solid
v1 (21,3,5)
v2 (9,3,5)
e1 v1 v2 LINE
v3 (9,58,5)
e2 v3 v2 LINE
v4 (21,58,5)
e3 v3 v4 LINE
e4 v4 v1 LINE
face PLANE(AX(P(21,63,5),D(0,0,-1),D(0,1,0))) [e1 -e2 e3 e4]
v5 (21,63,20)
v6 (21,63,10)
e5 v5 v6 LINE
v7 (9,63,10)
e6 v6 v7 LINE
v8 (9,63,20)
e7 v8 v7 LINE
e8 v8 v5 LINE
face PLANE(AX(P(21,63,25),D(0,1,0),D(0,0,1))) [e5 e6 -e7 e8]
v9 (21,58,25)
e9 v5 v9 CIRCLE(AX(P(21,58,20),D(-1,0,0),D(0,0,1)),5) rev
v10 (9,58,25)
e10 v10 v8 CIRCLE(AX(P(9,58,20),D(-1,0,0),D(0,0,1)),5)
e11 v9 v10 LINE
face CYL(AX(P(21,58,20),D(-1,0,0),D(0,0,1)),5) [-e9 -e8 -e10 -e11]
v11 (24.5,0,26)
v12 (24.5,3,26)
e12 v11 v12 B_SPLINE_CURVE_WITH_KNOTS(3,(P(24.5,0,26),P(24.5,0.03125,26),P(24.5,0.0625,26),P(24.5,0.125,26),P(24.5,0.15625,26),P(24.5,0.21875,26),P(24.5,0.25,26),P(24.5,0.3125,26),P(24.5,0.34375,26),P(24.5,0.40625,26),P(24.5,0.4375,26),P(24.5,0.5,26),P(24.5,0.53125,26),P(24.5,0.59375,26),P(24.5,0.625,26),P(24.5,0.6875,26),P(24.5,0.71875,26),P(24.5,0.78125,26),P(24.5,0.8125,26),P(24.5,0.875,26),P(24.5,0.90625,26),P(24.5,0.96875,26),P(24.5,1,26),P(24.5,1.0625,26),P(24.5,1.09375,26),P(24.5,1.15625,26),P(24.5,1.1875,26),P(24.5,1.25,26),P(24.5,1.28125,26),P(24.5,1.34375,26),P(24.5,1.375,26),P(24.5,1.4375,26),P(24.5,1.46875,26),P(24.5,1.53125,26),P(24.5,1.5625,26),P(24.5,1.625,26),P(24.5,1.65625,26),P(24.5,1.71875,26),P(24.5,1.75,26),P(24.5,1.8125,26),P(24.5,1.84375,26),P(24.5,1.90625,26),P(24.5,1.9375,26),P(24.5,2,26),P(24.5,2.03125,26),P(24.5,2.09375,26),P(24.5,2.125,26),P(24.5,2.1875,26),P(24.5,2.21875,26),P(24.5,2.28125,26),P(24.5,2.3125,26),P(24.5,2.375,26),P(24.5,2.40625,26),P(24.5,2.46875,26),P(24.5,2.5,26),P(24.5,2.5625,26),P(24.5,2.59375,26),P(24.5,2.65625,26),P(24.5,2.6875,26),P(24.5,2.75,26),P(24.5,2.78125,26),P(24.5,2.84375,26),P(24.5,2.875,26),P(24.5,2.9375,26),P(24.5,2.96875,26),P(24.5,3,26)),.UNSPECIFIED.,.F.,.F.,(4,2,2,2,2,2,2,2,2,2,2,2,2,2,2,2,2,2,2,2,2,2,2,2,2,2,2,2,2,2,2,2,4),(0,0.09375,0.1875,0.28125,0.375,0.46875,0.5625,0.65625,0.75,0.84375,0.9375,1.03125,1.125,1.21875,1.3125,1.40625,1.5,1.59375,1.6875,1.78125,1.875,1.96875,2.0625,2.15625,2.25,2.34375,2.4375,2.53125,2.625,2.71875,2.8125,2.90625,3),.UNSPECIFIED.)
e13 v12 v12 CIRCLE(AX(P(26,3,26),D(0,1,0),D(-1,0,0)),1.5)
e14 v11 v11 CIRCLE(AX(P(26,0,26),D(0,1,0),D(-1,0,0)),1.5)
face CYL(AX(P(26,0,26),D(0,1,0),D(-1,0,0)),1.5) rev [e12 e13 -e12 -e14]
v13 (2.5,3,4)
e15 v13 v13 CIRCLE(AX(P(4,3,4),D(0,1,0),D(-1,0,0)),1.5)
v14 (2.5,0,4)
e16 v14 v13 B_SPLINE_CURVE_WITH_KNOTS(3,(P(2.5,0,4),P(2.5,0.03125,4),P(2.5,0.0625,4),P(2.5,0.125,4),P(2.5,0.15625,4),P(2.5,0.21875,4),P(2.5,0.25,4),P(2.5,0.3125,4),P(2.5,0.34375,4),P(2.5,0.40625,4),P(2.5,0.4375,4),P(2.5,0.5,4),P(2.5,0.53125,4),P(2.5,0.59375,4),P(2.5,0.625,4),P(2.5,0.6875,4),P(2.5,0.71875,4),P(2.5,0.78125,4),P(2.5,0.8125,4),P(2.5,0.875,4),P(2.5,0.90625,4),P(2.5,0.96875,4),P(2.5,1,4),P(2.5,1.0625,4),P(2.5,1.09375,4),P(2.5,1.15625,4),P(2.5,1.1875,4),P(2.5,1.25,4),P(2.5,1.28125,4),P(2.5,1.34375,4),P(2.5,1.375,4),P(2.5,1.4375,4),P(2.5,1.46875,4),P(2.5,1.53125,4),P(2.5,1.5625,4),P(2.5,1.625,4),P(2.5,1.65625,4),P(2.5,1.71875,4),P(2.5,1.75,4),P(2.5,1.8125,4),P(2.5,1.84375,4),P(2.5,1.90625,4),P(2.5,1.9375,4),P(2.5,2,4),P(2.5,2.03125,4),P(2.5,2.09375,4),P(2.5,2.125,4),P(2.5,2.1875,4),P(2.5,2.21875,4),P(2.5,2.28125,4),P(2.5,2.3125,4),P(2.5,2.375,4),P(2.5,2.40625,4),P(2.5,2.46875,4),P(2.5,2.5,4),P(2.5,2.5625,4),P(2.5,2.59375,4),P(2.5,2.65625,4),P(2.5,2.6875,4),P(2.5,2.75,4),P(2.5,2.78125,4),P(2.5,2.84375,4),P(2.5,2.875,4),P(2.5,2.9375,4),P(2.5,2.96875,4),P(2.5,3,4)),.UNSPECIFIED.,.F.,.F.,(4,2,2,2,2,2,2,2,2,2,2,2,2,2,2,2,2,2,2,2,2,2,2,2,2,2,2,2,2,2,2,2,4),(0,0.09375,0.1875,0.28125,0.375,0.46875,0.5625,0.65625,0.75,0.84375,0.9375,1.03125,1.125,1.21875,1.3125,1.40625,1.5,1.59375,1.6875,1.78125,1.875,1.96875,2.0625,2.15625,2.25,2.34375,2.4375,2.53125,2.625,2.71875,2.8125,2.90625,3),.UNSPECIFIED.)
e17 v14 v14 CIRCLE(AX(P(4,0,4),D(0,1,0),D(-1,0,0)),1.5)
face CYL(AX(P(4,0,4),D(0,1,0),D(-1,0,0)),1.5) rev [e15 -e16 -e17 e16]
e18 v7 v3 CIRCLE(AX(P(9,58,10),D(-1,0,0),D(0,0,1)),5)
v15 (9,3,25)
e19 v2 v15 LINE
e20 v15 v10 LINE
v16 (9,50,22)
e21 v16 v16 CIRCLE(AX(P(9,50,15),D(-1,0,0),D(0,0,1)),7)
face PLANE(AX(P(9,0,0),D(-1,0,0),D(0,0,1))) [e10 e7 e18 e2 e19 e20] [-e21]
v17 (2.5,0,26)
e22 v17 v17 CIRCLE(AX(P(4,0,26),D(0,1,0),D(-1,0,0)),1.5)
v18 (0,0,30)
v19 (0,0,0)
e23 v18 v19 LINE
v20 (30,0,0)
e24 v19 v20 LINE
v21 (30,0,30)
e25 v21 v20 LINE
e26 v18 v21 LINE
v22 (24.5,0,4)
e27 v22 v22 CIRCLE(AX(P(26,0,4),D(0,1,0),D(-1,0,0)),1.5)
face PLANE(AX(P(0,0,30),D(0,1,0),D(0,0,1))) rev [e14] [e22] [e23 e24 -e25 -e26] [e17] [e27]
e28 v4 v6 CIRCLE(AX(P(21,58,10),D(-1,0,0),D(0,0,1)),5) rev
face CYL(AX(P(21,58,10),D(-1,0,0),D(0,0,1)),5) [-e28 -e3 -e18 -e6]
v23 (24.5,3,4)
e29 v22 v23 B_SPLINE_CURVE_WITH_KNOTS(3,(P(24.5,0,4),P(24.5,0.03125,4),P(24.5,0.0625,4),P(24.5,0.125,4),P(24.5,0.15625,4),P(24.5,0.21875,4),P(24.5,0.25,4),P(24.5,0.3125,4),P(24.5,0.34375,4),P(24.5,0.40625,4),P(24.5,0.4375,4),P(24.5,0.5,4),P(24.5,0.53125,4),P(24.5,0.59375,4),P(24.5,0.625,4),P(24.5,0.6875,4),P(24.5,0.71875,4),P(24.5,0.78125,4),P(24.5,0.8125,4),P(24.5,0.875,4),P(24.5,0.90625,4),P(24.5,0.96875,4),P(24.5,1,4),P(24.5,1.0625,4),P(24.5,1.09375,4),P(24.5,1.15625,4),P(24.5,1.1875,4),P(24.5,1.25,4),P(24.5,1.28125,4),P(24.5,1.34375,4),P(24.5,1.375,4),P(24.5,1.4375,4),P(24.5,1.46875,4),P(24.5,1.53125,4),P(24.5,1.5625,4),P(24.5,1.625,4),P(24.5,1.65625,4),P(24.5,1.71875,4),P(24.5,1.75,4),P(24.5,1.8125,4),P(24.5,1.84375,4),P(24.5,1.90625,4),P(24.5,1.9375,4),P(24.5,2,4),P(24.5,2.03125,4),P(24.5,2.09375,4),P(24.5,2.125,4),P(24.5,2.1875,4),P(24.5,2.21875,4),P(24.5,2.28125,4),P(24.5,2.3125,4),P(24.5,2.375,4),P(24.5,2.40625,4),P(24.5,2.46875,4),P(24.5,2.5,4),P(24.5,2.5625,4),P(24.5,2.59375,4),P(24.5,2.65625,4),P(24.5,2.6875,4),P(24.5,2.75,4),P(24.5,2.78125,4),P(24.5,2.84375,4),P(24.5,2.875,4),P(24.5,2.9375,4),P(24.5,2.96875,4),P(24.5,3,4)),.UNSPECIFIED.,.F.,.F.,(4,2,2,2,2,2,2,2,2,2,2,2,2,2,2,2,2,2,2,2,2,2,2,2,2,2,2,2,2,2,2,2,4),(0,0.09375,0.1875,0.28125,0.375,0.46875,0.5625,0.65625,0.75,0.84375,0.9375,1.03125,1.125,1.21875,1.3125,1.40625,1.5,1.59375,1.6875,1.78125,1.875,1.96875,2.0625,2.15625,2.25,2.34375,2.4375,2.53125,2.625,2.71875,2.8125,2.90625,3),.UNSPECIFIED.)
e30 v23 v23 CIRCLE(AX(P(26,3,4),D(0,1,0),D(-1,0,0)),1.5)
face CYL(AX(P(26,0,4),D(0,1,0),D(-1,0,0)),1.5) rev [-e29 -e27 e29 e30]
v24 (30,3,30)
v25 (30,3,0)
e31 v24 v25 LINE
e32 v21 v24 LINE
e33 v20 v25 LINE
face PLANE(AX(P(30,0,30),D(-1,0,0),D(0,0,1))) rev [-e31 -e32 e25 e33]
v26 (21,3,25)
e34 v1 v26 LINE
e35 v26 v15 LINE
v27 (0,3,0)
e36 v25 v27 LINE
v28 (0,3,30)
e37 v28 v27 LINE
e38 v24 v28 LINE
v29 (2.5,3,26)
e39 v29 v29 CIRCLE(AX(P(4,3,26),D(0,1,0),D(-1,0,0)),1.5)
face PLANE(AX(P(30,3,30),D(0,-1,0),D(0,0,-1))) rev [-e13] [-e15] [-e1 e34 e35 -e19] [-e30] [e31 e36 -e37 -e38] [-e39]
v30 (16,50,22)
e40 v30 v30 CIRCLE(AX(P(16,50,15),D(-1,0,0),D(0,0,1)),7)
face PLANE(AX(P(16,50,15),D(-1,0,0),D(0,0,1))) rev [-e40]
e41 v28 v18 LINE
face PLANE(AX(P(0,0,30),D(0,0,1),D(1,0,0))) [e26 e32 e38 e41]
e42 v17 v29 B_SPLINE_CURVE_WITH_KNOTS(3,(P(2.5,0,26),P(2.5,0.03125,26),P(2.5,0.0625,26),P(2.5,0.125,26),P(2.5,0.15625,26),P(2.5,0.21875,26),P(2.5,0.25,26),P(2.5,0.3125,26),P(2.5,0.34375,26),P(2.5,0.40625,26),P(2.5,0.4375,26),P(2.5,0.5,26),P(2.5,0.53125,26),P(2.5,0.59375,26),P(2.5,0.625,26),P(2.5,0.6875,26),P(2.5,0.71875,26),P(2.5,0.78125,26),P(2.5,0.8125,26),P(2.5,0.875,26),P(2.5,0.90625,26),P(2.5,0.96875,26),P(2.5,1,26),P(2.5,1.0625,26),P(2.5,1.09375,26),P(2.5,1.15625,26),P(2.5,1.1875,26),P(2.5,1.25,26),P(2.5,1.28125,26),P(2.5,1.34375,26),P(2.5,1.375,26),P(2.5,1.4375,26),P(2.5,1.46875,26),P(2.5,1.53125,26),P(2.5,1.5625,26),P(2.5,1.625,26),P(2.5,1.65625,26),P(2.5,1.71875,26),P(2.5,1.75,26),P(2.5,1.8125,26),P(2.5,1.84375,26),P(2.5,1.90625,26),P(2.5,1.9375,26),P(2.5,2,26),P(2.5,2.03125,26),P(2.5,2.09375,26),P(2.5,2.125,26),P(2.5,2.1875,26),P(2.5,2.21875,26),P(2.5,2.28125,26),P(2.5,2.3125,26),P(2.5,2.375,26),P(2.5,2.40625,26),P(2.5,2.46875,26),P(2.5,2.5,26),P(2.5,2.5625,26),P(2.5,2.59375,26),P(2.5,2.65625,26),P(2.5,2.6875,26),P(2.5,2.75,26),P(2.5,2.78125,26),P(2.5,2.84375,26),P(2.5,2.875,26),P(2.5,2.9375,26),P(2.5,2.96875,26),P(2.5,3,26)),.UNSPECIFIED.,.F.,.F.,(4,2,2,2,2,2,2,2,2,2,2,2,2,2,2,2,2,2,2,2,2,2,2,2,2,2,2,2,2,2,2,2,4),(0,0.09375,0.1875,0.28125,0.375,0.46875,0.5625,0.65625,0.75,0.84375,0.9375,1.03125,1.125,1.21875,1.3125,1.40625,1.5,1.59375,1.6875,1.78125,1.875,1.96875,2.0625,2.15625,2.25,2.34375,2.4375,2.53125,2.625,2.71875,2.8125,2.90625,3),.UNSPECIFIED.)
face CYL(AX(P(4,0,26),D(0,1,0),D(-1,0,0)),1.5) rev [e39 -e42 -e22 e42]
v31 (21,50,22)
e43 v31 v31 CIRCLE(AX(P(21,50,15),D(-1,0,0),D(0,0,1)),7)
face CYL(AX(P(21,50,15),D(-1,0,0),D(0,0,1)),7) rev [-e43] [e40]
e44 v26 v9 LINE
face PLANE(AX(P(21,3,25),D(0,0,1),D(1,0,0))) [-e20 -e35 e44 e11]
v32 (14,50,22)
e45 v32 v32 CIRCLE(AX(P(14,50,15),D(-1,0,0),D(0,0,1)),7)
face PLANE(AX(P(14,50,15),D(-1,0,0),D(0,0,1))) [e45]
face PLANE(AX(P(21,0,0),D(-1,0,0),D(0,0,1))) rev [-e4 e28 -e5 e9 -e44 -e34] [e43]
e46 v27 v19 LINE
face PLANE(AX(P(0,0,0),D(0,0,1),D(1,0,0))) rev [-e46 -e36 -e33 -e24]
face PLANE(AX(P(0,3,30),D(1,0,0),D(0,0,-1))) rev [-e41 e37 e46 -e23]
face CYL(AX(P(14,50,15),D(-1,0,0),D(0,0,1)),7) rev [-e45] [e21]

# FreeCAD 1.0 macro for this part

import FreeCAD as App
import Part
import Sketcher

V = App.Vector


def edges_at(feature, points):
    """Names of the edges that pass closest to the given points."""
    edges = feature.Shape.Edges
    near = lambda p: min(range(len(edges)), key=lambda i: edges[i].distToShape(Part.Vertex(*p))[0])
    return sorted({f"Edge{near(p) + 1}" for p in points})


def add_polygon(sketch, points):
    """Adds a closed chain of lines whose ends are joined by coincident constraints."""
    first, n = sketch.GeometryCount, len(points)
    for a, b in zip(points, points[1:] + points[:1]):
        sketch.addGeometry(Part.LineSegment(App.Vector(*a, 0), App.Vector(*b, 0)), False)
    for i in range(n):
        sketch.addConstraint(Sketcher.Constraint("Coincident", first + i, 2, first + (i + 1) % n, 1))

doc = App.newDocument("Part")
body = doc.addObject("PartDesign::Body", "Body")

sketch1 = body.newObject("Sketcher::SketchObject", "Sketch")
sketch1.AttachmentSupport = (doc.getObject("XY_Plane"), [""])
sketch1.MapMode = "FlatFace"
add_polygon(sketch1, [(0, 3), (0, 0), (30, 0), (30, 3)])
sketch1.addConstraint([
    Sketcher.Constraint("Vertical", 0),
    Sketcher.Constraint("Horizontal", 1),
    Sketcher.Constraint("Vertical", 2),
    Sketcher.Constraint("Horizontal", 3),
    Sketcher.Constraint("Coincident", 0, 2, -1, 1),
    Sketcher.Constraint("DistanceX", 1, 1, 1, 2, 30.0),
    Sketcher.Constraint("DistanceY", 0, 2, 0, 1, 3.0),
])
pad1 = body.newObject("PartDesign::Pad", "Pad")
pad1.Profile = sketch1
pad1.Length = 30

sketch2 = body.newObject("Sketcher::SketchObject", "Sketch001")
sketch2.AttachmentSupport = (doc.getObject("YZ_Plane"), [""])
sketch2.MapMode = "FlatFace"
sketch2.AttachmentOffset = App.Placement(V(0, 0, 9), App.Rotation())
add_polygon(sketch2, [(63, 5), (3, 5), (3, 25), (63, 25)])
sketch2.addConstraint([
    Sketcher.Constraint("Horizontal", 0),
    Sketcher.Constraint("Vertical", 1),
    Sketcher.Constraint("Horizontal", 2),
    Sketcher.Constraint("Vertical", 3),
    Sketcher.Constraint("DistanceX", 0, 2, 0, 1, 60.0),
    Sketcher.Constraint("DistanceY", 1, 1, 1, 2, 20.0),
    Sketcher.Constraint("DistanceX", -1, 1, 0, 2, 3.0),
    Sketcher.Constraint("DistanceY", -1, 1, 0, 2, 5.0),
])
pad2 = body.newObject("PartDesign::Pad", "Pad001")
pad2.Profile = sketch2
pad2.Length = 12

sketch3 = body.newObject("Sketcher::SketchObject", "Sketch002")
sketch3.AttachmentSupport = (doc.getObject("YZ_Plane"), [""])
sketch3.MapMode = "FlatFace"
sketch3.AttachmentOffset = App.Placement(V(0, 0, 9), App.Rotation())
sketch3.addGeometry(Part.Circle(V(50, 15, 0), V(0, 0, 1), 7), False)
sketch3.addConstraint([
    Sketcher.Constraint("Diameter", 0, 14.0),
    Sketcher.Constraint("DistanceX", -1, 1, 0, 3, 50.0),
    Sketcher.Constraint("DistanceY", -1, 1, 0, 3, 15.0),
])
pocket1 = body.newObject("PartDesign::Pocket", "Pocket")
pocket1.Profile = sketch3
pocket1.Length = 5
pocket1.Reversed = True

sketch4 = body.newObject("Sketcher::SketchObject", "Sketch003")
sketch4.AttachmentSupport = (doc.getObject("YZ_Plane"), [""])
sketch4.MapMode = "FlatFace"
sketch4.AttachmentOffset = App.Placement(V(0, 0, 16), App.Rotation())
sketch4.addGeometry(Part.Circle(V(50, 15, 0), V(0, 0, 1), 7), False)
sketch4.addConstraint([
    Sketcher.Constraint("Diameter", 0, 14.0),
    Sketcher.Constraint("DistanceX", -1, 1, 0, 3, 50.0),
    Sketcher.Constraint("DistanceY", -1, 1, 0, 3, 15.0),
])
pocket2 = body.newObject("PartDesign::Pocket", "Pocket001")
pocket2.Profile = sketch4
pocket2.Length = 5
pocket2.Reversed = True

sketch5 = body.newObject("Sketcher::SketchObject", "Sketch004")
sketch5.AttachmentSupport = (doc.getObject("XZ_Plane"), [""])
sketch5.MapMode = "FlatFace"
sketch5.AttachmentOffset = App.Placement(V(0, 0, -3), App.Rotation())
sketch5.addGeometry([
    Part.Circle(V(4, 4, 0), V(0, 0, 1), 1.5),
    Part.Circle(V(26, 4, 0), V(0, 0, 1), 1.5),
    Part.Circle(V(26, 26, 0), V(0, 0, 1), 1.5),
    Part.Circle(V(4, 26, 0), V(0, 0, 1), 1.5),
], False)
sketch5.addConstraint([
    Sketcher.Constraint("Equal", 0, 1),
    Sketcher.Constraint("Equal", 1, 2),
    Sketcher.Constraint("Equal", 2, 3),
    Sketcher.Constraint("Horizontal", 0, 3, 1, 3),
    Sketcher.Constraint("Horizontal", 2, 3, 3, 3),
    Sketcher.Constraint("Vertical", 1, 3, 2, 3),
    Sketcher.Constraint("Vertical", 0, 3, 3, 3),
    Sketcher.Constraint("Diameter", 0, 3.0),
    Sketcher.Constraint("DistanceX", -1, 1, 0, 3, 4.0),
    Sketcher.Constraint("DistanceY", -1, 1, 0, 3, 4.0),
    Sketcher.Constraint("DistanceX", -1, 1, 1, 3, 26.0),
    Sketcher.Constraint("DistanceY", -1, 1, 2, 3, 26.0),
])
pocket3 = body.newObject("PartDesign::Pocket", "Pocket002")
pocket3.Profile = sketch5
pocket3.Type = "ThroughAll"
pocket3.Reversed = True
doc.recompute()

fillet = body.newObject("PartDesign::Fillet", "Fillet")
fillet.Base = (pocket3, edges_at(pocket3, [(15, 63, 5), (15, 63, 25)]))
fillet.Radius = 5

doc.recompute()
